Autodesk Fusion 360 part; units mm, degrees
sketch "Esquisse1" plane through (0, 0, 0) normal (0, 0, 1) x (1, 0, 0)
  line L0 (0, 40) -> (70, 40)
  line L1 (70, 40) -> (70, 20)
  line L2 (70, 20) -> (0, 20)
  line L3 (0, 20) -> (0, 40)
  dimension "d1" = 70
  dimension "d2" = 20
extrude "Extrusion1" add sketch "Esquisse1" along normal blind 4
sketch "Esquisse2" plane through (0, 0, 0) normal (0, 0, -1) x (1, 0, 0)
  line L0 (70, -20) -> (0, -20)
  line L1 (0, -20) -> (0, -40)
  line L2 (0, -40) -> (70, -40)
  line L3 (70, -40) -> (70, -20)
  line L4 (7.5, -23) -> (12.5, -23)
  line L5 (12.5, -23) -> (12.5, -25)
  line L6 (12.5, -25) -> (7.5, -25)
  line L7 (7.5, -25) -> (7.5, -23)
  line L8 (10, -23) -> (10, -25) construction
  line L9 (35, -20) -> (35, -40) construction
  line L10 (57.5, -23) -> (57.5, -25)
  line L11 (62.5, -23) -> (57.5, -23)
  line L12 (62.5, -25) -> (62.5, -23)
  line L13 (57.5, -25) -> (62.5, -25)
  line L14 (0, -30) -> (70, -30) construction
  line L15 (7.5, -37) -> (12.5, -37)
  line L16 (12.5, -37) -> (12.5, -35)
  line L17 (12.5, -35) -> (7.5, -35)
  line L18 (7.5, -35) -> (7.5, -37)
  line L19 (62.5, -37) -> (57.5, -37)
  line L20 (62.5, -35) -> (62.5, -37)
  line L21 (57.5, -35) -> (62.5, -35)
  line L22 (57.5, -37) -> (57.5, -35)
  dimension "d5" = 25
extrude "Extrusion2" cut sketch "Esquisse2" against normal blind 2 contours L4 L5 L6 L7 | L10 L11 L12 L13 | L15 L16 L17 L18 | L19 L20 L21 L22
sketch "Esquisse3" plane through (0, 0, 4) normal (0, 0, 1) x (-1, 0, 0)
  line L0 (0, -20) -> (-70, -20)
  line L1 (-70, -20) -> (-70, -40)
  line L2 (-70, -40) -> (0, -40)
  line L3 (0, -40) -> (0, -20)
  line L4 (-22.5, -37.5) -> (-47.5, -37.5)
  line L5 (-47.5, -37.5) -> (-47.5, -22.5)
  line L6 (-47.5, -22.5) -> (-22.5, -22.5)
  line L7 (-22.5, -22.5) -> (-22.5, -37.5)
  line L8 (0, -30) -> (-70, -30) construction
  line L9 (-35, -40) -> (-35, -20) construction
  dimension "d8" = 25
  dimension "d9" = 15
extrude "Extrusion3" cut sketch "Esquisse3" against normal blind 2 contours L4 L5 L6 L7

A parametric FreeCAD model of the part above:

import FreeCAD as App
import Part
import Sketcher
from FreeCAD import Vector

doc = App.newDocument("Part")
body = doc.addObject("PartDesign::Body", "Body")

# Sketch on XY plane
sketch1 = body.newObject("Sketcher::SketchObject", "Sketch")
sketch1.AttachmentSupport = (doc.getObject("XY_Plane"), [""])
sketch1.MapMode = "FlatFace"
sketch1.addGeometry([
    Part.LineSegment(Vector(70, 40, 0), Vector(0, 40, 0)),
    Part.LineSegment(Vector(0, 40, 0), Vector(0, 20, 0)),
    Part.LineSegment(Vector(0, 20, 0), Vector(70, 20, 0)),
    Part.LineSegment(Vector(70, 20, 0), Vector(70, 40, 0)),
], False)
sketch1.addConstraint([
    Sketcher.Constraint("Coincident", 0, 2, 1, 1),
    Sketcher.Constraint("Coincident", 1, 2, 2, 1),
    Sketcher.Constraint("Coincident", 2, 2, 3, 1),
    Sketcher.Constraint("Coincident", 3, 2, 0, 1),
    Sketcher.Constraint("Horizontal", 0),
    Sketcher.Constraint("Vertical", 1),
    Sketcher.Constraint("Horizontal", 2),
    Sketcher.Constraint("Vertical", 3),
    Sketcher.Constraint("PointOnObject", 0, 2, -2),
    Sketcher.Constraint("DistanceX", 0, 2, 0, 1, 70.0),
    Sketcher.Constraint("DistanceY", 1, 2, 1, 1, 20.0),
    Sketcher.Constraint("DistanceY", -1, 1, 1, 2, 20.0),
])
pad1 = body.newObject("PartDesign::Pad", "Pad")
pad1.Profile = sketch1
pad1.Length = 4

# Sketch on XY plane
sketch2 = body.newObject("Sketcher::SketchObject", "Sketch001")
sketch2.AttachmentSupport = (doc.getObject("XY_Plane"), [""])
sketch2.MapMode = "FlatFace"
sketch2.addGeometry([
    Part.LineSegment(Vector(12.5, 23, 0), Vector(7.5, 23, 0)),  # 0
    Part.LineSegment(Vector(7.5, 23, 0), Vector(7.5, 25, 0)),  # 1
    Part.LineSegment(Vector(7.5, 25, 0), Vector(12.5, 25, 0)),  # 2
    Part.LineSegment(Vector(12.5, 25, 0), Vector(12.5, 23, 0)),  # 3
    Part.LineSegment(Vector(62.5, 23, 0), Vector(57.5, 23, 0)),  # 4
    Part.LineSegment(Vector(57.5, 23, 0), Vector(57.5, 25, 0)),  # 5
    Part.LineSegment(Vector(57.5, 25, 0), Vector(62.5, 25, 0)),  # 6
    Part.LineSegment(Vector(62.5, 25, 0), Vector(62.5, 23, 0)),  # 7
    Part.LineSegment(Vector(7.5, 35, 0), Vector(7.5, 37, 0)),  # 8
    Part.LineSegment(Vector(7.5, 37, 0), Vector(12.5, 37, 0)),  # 9
    Part.LineSegment(Vector(12.5, 37, 0), Vector(12.5, 35, 0)),  # 10
    Part.LineSegment(Vector(12.5, 35, 0), Vector(7.5, 35, 0)),  # 11
    Part.LineSegment(Vector(57.5, 37, 0), Vector(62.5, 37, 0)),  # 12
    Part.LineSegment(Vector(62.5, 37, 0), Vector(62.5, 35, 0)),  # 13
    Part.LineSegment(Vector(62.5, 35, 0), Vector(57.5, 35, 0)),  # 14
    Part.LineSegment(Vector(57.5, 35, 0), Vector(57.5, 37, 0)),  # 15
], False)
sketch2.addConstraint([
    Sketcher.Constraint("Coincident", 0, 2, 1, 1),
    Sketcher.Constraint("Coincident", 1, 2, 2, 1),
    Sketcher.Constraint("Coincident", 2, 2, 3, 1),
    Sketcher.Constraint("Coincident", 3, 2, 0, 1),
    Sketcher.Constraint("Coincident", 4, 2, 5, 1),
    Sketcher.Constraint("Coincident", 5, 2, 6, 1),
    Sketcher.Constraint("Coincident", 6, 2, 7, 1),
    Sketcher.Constraint("Coincident", 7, 2, 4, 1),
    Sketcher.Constraint("Coincident", 8, 2, 9, 1),
    Sketcher.Constraint("Coincident", 9, 2, 10, 1),
    Sketcher.Constraint("Coincident", 10, 2, 11, 1),
    Sketcher.Constraint("Coincident", 11, 2, 8, 1),
    Sketcher.Constraint("Coincident", 12, 2, 13, 1),
    Sketcher.Constraint("Coincident", 13, 2, 14, 1),
    Sketcher.Constraint("Coincident", 14, 2, 15, 1),
    Sketcher.Constraint("Coincident", 15, 2, 12, 1),
    Sketcher.Constraint("Horizontal", 0),
    Sketcher.Constraint("Vertical", 1),
    Sketcher.Constraint("Horizontal", 2),
    Sketcher.Constraint("Vertical", 3),
    Sketcher.Constraint("Horizontal", 4),
    Sketcher.Constraint("Vertical", 5),
    Sketcher.Constraint("Horizontal", 6),
    Sketcher.Constraint("Vertical", 7),
    Sketcher.Constraint("Vertical", 8),
    Sketcher.Constraint("Horizontal", 9),
    Sketcher.Constraint("Vertical", 10),
    Sketcher.Constraint("Horizontal", 11),
    Sketcher.Constraint("Horizontal", 12),
    Sketcher.Constraint("Vertical", 13),
    Sketcher.Constraint("Horizontal", 14),
    Sketcher.Constraint("Vertical", 15),
    Sketcher.Constraint("Horizontal", 3, 2, 4, 2),
    Sketcher.Constraint("Horizontal", 2, 2, 5, 2),
    Sketcher.Constraint("Horizontal", 9, 2, 12, 2),
    Sketcher.Constraint("Horizontal", 11, 2, 13, 2),
    Sketcher.Constraint("Vertical", 1, 2, 8, 2),
    Sketcher.Constraint("Vertical", 3, 2, 9, 2),
    Sketcher.Constraint("Vertical", 7, 2, 12, 2),
    Sketcher.Constraint("Vertical", 5, 2, 14, 2),
    Sketcher.Constraint("Equal", 2, 4),
    Sketcher.Constraint("Equal", 7, 8),
    Sketcher.Constraint("DistanceY", -1, 1, 1, 2, 25.0),
    Sketcher.Constraint("DistanceX", 0, 2, 0, 1, 5.0),
    Sketcher.Constraint("DistanceY", 1, 1, 1, 2, 2.0),
    Sketcher.Constraint("DistanceY", -1, 1, 8, 2, 37.0),
    Sketcher.Constraint("DistanceX", 3, 2, 4, 2, 45.0),
    Sketcher.Constraint("DistanceX", -1, 1, 0, 2, 7.5),
])
pocket1 = body.newObject("PartDesign::Pocket", "Pocket")
pocket1.Profile = sketch2
pocket1.Length = 2
pocket1.Reversed = True

# Sketch on XY plane
sketch3 = body.newObject("Sketcher::SketchObject", "Sketch002")
sketch3.AttachmentSupport = (doc.getObject("XY_Plane"), [""])
sketch3.MapMode = "FlatFace"
sketch3.AttachmentOffset = App.Placement(Vector(0, 0, 4), App.Rotation())
sketch3.addGeometry([
    Part.LineSegment(Vector(47.5, 37.5, 0), Vector(22.5, 37.5, 0)),
    Part.LineSegment(Vector(22.5, 37.5, 0), Vector(22.5, 22.5, 0)),
    Part.LineSegment(Vector(22.5, 22.5, 0), Vector(47.5, 22.5, 0)),
    Part.LineSegment(Vector(47.5, 22.5, 0), Vector(47.5, 37.5, 0)),
], False)
sketch3.addConstraint([
    Sketcher.Constraint("Coincident", 0, 2, 1, 1),
    Sketcher.Constraint("Coincident", 1, 2, 2, 1),
    Sketcher.Constraint("Coincident", 2, 2, 3, 1),
    Sketcher.Constraint("Coincident", 3, 2, 0, 1),
    Sketcher.Constraint("Horizontal", 0),
    Sketcher.Constraint("Vertical", 1),
    Sketcher.Constraint("Horizontal", 2),
    Sketcher.Constraint("Vertical", 3),
    Sketcher.Constraint("DistanceX", 0, 2, 0, 1, 25.0),
    Sketcher.Constraint("DistanceY", 1, 2, 1, 1, 15.0),
    Sketcher.Constraint("DistanceX", -1, 1, 0, 2, 22.5),
    Sketcher.Constraint("DistanceY", -1, 1, 0, 2, 37.5),
])
pocket2 = body.newObject("PartDesign::Pocket", "Pocket001")
pocket2.Profile = sketch3
pocket2.Length = 2

doc.recompute()
